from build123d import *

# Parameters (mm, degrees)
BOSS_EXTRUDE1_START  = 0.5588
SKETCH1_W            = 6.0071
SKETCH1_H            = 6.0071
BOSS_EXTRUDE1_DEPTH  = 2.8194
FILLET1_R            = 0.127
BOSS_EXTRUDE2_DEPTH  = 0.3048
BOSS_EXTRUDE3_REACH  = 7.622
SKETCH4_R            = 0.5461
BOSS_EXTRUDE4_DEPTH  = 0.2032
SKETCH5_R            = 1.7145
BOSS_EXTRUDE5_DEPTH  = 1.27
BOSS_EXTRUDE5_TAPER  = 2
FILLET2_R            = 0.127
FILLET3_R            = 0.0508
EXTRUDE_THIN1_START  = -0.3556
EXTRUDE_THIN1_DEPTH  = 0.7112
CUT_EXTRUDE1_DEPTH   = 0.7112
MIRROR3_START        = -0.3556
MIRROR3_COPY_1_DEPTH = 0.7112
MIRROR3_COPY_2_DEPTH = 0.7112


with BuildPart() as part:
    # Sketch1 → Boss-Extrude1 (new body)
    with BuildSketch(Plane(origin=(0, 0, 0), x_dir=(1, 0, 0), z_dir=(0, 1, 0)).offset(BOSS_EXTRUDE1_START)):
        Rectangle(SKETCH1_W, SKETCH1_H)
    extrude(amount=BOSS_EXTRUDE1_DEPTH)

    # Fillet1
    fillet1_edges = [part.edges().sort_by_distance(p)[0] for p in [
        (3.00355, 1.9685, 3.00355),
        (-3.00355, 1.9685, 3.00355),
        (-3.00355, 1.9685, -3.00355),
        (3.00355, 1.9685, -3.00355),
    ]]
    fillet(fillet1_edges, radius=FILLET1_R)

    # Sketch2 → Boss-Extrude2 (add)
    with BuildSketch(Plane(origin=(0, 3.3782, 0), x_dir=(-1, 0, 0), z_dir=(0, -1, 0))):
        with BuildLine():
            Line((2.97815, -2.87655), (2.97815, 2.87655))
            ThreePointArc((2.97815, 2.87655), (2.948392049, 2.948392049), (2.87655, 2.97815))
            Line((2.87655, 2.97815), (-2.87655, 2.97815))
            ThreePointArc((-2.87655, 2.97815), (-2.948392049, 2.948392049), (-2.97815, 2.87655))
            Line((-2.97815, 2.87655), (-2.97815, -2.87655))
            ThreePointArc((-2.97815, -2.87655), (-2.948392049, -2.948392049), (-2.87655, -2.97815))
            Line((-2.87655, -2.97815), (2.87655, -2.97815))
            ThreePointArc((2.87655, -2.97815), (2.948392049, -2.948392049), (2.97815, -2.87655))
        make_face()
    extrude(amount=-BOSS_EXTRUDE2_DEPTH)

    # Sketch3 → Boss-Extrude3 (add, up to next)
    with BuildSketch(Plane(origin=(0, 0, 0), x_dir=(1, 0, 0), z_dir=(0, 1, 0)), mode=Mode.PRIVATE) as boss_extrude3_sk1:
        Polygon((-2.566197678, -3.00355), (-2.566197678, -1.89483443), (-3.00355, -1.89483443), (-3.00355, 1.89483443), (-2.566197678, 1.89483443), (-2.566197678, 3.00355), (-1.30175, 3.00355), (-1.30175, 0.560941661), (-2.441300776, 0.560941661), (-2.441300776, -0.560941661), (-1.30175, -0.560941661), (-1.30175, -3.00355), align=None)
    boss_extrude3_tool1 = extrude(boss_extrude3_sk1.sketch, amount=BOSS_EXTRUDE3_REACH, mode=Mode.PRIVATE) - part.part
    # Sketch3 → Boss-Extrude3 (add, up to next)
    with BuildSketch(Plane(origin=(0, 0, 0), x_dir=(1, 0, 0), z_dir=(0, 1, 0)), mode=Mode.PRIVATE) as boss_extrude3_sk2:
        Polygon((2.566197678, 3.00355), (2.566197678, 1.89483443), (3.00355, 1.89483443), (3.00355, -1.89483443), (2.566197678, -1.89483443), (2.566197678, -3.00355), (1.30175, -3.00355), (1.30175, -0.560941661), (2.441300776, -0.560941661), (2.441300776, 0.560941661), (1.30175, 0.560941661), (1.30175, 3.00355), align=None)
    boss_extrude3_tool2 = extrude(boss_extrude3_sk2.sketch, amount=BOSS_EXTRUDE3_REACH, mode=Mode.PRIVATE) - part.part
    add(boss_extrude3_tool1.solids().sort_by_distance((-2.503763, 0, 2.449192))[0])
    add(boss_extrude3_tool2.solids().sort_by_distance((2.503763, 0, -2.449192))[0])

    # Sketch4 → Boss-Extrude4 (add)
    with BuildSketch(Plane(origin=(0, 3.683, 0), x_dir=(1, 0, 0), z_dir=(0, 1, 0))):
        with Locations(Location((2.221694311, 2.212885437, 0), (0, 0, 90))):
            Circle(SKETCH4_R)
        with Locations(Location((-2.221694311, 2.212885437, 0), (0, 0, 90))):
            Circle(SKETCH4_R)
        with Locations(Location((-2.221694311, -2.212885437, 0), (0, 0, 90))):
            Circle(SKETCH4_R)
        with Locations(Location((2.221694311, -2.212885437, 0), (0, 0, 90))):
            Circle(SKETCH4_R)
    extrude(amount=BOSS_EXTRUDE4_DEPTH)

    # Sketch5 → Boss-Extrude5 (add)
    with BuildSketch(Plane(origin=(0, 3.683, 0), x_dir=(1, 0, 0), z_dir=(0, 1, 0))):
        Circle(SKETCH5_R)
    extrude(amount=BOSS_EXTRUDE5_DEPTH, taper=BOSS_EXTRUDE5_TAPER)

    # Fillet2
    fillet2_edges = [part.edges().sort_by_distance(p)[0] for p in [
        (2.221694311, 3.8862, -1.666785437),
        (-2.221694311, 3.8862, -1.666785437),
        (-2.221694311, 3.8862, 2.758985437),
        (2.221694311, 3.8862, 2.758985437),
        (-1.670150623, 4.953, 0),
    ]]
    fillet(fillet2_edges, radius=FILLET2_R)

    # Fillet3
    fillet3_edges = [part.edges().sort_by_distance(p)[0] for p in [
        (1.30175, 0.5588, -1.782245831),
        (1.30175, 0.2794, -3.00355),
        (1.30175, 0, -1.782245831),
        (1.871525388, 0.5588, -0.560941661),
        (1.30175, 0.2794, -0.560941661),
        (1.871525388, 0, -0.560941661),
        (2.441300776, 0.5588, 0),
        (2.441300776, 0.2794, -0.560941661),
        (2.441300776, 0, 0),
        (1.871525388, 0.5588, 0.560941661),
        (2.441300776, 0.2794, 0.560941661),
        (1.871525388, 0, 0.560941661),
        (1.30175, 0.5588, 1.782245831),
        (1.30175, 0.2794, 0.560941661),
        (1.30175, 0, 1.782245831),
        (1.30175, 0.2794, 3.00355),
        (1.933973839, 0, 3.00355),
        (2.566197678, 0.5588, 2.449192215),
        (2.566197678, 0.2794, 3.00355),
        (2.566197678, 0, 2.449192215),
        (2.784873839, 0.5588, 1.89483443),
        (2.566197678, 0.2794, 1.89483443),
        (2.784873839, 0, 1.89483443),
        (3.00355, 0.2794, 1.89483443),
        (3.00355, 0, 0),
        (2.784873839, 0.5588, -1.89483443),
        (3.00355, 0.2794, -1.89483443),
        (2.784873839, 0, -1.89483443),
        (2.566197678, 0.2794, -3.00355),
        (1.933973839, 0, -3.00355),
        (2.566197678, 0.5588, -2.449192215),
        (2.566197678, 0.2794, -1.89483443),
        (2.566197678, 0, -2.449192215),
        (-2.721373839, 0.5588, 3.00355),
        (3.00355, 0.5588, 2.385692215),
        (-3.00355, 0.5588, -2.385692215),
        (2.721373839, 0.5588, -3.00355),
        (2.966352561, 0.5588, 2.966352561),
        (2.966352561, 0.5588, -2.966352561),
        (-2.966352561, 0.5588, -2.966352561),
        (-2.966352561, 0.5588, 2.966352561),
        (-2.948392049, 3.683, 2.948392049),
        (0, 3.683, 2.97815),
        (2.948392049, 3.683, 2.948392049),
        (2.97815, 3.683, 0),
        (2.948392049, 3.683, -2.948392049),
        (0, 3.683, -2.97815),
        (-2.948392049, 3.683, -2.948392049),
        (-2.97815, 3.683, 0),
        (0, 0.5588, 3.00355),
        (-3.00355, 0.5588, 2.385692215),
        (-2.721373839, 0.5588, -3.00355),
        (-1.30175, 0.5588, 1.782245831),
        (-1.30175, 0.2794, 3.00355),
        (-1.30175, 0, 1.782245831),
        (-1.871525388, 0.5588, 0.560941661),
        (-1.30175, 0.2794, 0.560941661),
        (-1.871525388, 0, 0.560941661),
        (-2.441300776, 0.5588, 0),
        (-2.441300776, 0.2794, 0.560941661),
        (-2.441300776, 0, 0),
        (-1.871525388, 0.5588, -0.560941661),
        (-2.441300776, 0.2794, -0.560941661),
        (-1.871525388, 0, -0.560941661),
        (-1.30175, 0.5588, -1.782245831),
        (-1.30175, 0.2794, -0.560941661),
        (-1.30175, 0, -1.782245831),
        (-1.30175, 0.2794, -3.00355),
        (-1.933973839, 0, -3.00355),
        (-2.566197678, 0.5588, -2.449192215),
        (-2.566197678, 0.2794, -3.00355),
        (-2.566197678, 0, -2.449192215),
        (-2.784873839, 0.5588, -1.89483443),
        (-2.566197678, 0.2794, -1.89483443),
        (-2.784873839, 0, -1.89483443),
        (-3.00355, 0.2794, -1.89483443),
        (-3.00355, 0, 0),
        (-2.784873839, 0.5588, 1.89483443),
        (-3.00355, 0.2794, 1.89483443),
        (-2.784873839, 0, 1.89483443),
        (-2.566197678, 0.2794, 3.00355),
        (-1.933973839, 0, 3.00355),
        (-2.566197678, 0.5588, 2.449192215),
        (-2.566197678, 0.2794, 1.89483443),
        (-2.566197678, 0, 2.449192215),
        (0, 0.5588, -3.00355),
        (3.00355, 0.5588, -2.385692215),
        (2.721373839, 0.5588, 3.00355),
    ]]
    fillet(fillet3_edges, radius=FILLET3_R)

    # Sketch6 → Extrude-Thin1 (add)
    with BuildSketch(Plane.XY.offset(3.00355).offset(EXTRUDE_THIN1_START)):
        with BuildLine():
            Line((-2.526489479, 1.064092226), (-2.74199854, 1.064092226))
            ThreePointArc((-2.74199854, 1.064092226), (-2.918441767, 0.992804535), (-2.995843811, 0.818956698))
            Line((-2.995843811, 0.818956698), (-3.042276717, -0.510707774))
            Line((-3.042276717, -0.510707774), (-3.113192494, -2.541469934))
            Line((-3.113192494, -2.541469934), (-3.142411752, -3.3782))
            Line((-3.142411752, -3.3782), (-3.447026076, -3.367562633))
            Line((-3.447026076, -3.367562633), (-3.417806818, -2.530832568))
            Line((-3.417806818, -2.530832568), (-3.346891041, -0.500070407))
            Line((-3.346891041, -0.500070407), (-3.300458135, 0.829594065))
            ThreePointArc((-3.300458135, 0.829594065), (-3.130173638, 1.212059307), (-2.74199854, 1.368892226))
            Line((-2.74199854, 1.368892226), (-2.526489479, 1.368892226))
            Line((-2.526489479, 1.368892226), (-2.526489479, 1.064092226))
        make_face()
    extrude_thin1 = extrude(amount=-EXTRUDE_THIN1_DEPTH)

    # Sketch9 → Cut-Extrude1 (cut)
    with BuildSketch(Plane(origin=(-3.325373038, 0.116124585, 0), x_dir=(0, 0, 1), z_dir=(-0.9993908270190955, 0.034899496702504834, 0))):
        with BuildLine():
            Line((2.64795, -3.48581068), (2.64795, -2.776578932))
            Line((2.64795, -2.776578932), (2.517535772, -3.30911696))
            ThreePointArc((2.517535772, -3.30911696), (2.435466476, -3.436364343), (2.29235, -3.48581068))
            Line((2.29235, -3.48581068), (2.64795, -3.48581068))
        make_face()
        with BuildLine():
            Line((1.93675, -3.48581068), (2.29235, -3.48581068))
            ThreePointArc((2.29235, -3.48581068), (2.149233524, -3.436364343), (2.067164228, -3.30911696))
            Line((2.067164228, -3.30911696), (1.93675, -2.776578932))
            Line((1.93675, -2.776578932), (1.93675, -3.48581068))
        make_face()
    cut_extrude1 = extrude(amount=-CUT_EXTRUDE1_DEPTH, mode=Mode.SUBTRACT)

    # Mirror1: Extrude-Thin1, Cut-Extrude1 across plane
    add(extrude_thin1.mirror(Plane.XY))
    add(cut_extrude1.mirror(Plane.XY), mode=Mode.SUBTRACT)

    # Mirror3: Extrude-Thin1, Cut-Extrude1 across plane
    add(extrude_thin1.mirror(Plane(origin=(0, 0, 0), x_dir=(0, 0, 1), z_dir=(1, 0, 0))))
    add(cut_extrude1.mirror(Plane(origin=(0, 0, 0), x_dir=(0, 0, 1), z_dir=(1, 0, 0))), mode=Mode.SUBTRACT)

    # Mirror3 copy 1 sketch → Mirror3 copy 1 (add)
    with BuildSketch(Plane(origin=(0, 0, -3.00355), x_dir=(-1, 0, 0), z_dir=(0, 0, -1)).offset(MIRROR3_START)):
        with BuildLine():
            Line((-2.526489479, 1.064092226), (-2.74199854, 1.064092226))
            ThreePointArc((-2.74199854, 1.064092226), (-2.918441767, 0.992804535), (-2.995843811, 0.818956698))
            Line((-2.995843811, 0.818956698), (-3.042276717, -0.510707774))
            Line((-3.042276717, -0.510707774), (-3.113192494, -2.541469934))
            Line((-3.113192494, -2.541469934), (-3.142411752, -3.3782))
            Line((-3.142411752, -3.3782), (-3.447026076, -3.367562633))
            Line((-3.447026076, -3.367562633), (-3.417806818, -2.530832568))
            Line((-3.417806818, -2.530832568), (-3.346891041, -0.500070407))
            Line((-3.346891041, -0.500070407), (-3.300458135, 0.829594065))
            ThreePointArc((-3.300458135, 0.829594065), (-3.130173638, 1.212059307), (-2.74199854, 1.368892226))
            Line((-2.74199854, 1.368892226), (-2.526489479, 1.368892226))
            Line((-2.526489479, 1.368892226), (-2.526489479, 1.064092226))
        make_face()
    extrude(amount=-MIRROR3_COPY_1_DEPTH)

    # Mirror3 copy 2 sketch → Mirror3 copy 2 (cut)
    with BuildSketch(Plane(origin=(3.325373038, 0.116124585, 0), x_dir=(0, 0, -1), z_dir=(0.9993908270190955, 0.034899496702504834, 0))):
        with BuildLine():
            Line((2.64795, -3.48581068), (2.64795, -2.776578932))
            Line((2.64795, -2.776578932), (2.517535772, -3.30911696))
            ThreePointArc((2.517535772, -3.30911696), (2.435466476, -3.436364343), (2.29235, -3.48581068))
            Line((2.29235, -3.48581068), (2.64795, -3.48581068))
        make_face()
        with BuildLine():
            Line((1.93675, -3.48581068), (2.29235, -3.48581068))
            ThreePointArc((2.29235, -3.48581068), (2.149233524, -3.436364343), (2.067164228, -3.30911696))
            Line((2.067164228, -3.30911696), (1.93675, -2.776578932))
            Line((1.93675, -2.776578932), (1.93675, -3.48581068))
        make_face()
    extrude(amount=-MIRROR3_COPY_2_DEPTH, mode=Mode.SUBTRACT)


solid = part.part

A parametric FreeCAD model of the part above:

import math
import FreeCAD as App
import Part
import Sketcher
Q = App.Units.Quantity


def edges_at(feature, points):
    """Names of the edges that pass closest to the given points."""
    edges = feature.Shape.Edges
    near = lambda p: min(range(len(edges)), key=lambda i: edges[i].distToShape(Part.Vertex(*p))[0])
    return sorted({f"Edge{near(p) + 1}" for p in points})

doc = App.newDocument("Part")
body = doc.addObject("PartDesign::Body", "Body")

sketch1 = body.newObject("Sketcher::SketchObject", "Sketch")
sketch1.AttachmentSupport = (doc.getObject("XZ_Plane"), [""])
sketch1.MapMode = "FlatFace"
sketch1.AttachmentOffset = App.Placement(App.Vector(0, 0, -0.022 * 25.4), App.Rotation())
sketch1.addGeometry([
    Part.LineSegment(App.Vector(-3, -3, 0), App.Vector(-3, 3, 0)),
    Part.LineSegment(App.Vector(-3, 3, 0), App.Vector(3, 3, 0)),
    Part.LineSegment(App.Vector(3, 3, 0), App.Vector(3, -3, 0)),
    Part.LineSegment(App.Vector(3, -3, 0), App.Vector(-3, -3, 0)),
], False)
sketch1.addConstraint([
    Sketcher.Constraint("Coincident", 0, 2, 1, 1),
    Sketcher.Constraint("Coincident", 1, 2, 2, 1),
    Sketcher.Constraint("Coincident", 2, 2, 3, 1),
    Sketcher.Constraint("Coincident", 3, 2, 0, 1),
    Sketcher.Constraint("Vertical", 0),
    Sketcher.Constraint("Horizontal", 1),
    Sketcher.Constraint("Vertical", 2),
    Sketcher.Constraint("Horizontal", 3),
    Sketcher.Constraint("Symmetric", 0, 2, 2, 2, -1, 1),
    Sketcher.Constraint("Equal", 3, 0),
    Sketcher.Constraint("DistanceX", 1, 1, 1, 2, Q("0.2365 in")),
])
pad1 = body.newObject("PartDesign::Pad", "Pad")
pad1.Profile = sketch1
pad1.Length = Q("0.111 in")
pad1.Reversed = True
doc.recompute()

fillet = body.newObject("PartDesign::Fillet", "Fillet")
fillet.Base = (pad1, edges_at(pad1, [
    (3.004, 1.968, 3.004),
    (-3.004, 1.968, 3.004),
    (-3.004, 1.968, -3.004),
    (3.004, 1.968, -3.004),
]))
fillet.Radius = Q("0.005 in")

sketch2 = body.newObject("Sketcher::SketchObject", "Sketch001")
sketch2.AttachmentSupport = (doc.getObject("XZ_Plane"), [""])
sketch2.MapMode = "FlatFace"
sketch2.AttachmentOffset = App.Placement(App.Vector(0, 0, -0.133 * 25.4), App.Rotation())
sketch2.addGeometry([
    Part.LineSegment(App.Vector(-2.98, 2.88, 0), App.Vector(-2.98, -2.88, 0)),
    Part.ArcOfCircle(Part.Circle(App.Vector(-2.88, -2.88, 0), App.Vector(0, 0, 1), 0.1), math.radians(180), math.radians(270)),
    Part.LineSegment(App.Vector(-2.88, -2.98, 0), App.Vector(2.88, -2.98, 0)),
    Part.ArcOfCircle(Part.Circle(App.Vector(2.88, -2.88, 0), App.Vector(0, 0, 1), 0.1), math.radians(-90), math.radians(0)),
    Part.LineSegment(App.Vector(2.98, -2.88, 0), App.Vector(2.98, 2.88, 0)),
    Part.ArcOfCircle(Part.Circle(App.Vector(2.88, 2.88, 0), App.Vector(0, 0, 1), 0.1), math.radians(0), math.radians(90)),
    Part.LineSegment(App.Vector(2.88, 2.98, 0), App.Vector(-2.88, 2.98, 0)),
    Part.ArcOfCircle(Part.Circle(App.Vector(-2.88, 2.88, 0), App.Vector(0, 0, 1), 0.1), math.radians(90), math.radians(180)),
], False)
sketch2.addConstraint([
    Sketcher.Constraint("Tangent", 0, 2, 1, 1),
    Sketcher.Constraint("Tangent", 1, 2, 2, 1),
    Sketcher.Constraint("Tangent", 2, 2, 3, 1),
    Sketcher.Constraint("Tangent", 3, 2, 4, 1),
    Sketcher.Constraint("Tangent", 4, 2, 5, 1),
    Sketcher.Constraint("Tangent", 5, 2, 6, 1),
    Sketcher.Constraint("Tangent", 6, 2, 7, 1),
    Sketcher.Constraint("Tangent", 7, 2, 0, 1),
    Sketcher.Constraint("Vertical", 0),
    Sketcher.Constraint("Horizontal", 2),
    Sketcher.Constraint("Vertical", 4),
    Sketcher.Constraint("Horizontal", 6),
    Sketcher.Constraint("Equal", 1, 3),
    Sketcher.Constraint("Equal", 3, 5),
    Sketcher.Constraint("Equal", 5, 7),
    Sketcher.Constraint("Symmetric", 1, 3, 5, 3, -1, 1),
    Sketcher.Constraint("Equal", 6, 0),
    Sketcher.Constraint("Radius", 1, Q("0.004 in")),
    Sketcher.Constraint("DistanceX", 2, 1, 2, 2, Q("0.2265 in")),
])
pad2 = body.newObject("PartDesign::Pad", "Pad001")
pad2.Profile = sketch2
pad2.Length = Q("0.012 in")
pad2.Reversed = True

sketch3 = body.newObject("Sketcher::SketchObject", "Sketch002")
sketch3.AttachmentSupport = (doc.getObject("XZ_Plane"), [""])
sketch3.MapMode = "FlatFace"
sketch3.addGeometry([
    Part.LineSegment(App.Vector(-2.57, 1.89, 0), App.Vector(-2.57, 3, 0)),
    Part.LineSegment(App.Vector(-2.57, 3, 0), App.Vector(-1.3, 3, 0)),
    Part.LineSegment(App.Vector(-1.3, 3, 0), App.Vector(-1.3, 0.56, 0)),
    Part.LineSegment(App.Vector(-1.3, 0.56, 0), App.Vector(-2.44, 0.56, 0)),
    Part.LineSegment(App.Vector(-2.44, 0.56, 0), App.Vector(-2.44, -0.56, 0)),
    Part.LineSegment(App.Vector(-2.44, -0.56, 0), App.Vector(-1.3, -0.56, 0)),
    Part.LineSegment(App.Vector(-1.3, -0.56, 0), App.Vector(-1.3, -3, 0)),
    Part.LineSegment(App.Vector(-1.3, -3, 0), App.Vector(-2.57, -3, 0)),
    Part.LineSegment(App.Vector(-2.57, -3, 0), App.Vector(-2.57, -1.89, 0)),
    Part.LineSegment(App.Vector(-2.57, -1.89, 0), App.Vector(-3, -1.89, 0)),
    Part.LineSegment(App.Vector(-3, -1.89, 0), App.Vector(-3, 1.89, 0)),
    Part.LineSegment(App.Vector(-3, 1.89, 0), App.Vector(-2.57, 1.89, 0)),
], False)
sketch3.addConstraint([
    Sketcher.Constraint("Coincident", 0, 2, 1, 1),
    Sketcher.Constraint("Coincident", 1, 2, 2, 1),
    Sketcher.Constraint("Coincident", 2, 2, 3, 1),
    Sketcher.Constraint("Coincident", 3, 2, 4, 1),
    Sketcher.Constraint("Coincident", 4, 2, 5, 1),
    Sketcher.Constraint("Coincident", 5, 2, 6, 1),
    Sketcher.Constraint("Coincident", 6, 2, 7, 1),
    Sketcher.Constraint("Coincident", 7, 2, 8, 1),
    Sketcher.Constraint("Coincident", 8, 2, 9, 1),
    Sketcher.Constraint("Coincident", 9, 2, 10, 1),
    Sketcher.Constraint("Coincident", 10, 2, 11, 1),
    Sketcher.Constraint("Coincident", 11, 2, 0, 1),
    Sketcher.Constraint("Vertical", 0),
    Sketcher.Constraint("Horizontal", 1),
    Sketcher.Constraint("Vertical", 2),
    Sketcher.Constraint("Horizontal", 3),
    Sketcher.Constraint("Vertical", 4),
    Sketcher.Constraint("Horizontal", 5),
    Sketcher.Constraint("Vertical", 6),
    Sketcher.Constraint("Horizontal", 7),
    Sketcher.Constraint("Vertical", 8),
    Sketcher.Constraint("Horizontal", 9),
    Sketcher.Constraint("Vertical", 10),
    Sketcher.Constraint("Horizontal", 11),
    Sketcher.Constraint("Symmetric", 2, 2, 5, 2, -1),
    Sketcher.Constraint("Symmetric", 0, 2, 7, 2, -1),
    Sketcher.Constraint("Equal", 0, 8),
    Sketcher.Constraint("DistanceX", 9, 2, 6, 2, Q("0.067 in")),
    Sketcher.Constraint("DistanceY", 6, 2, 1, 2, Q("0.2365 in")),
    Sketcher.Constraint("DistanceX", 3, 2, 3, 1, Q("1.139551 mm")),
    Sketcher.Constraint("DistanceY", 2, 2, 2, 1, Q("2.442608 mm")),
    Sketcher.Constraint("DistanceY", 10, 1, 10, 2, Q("3.789669 mm")),
    Sketcher.Constraint("DistanceX", 3, 2, -1, 1, Q("2.441301 mm")),
    Sketcher.Constraint("DistanceX", 1, 1, 1, 2, Q("1.264448 mm")),
])
pad3 = body.newObject("PartDesign::Pad", "Pad002")
pad3.Profile = sketch3
pad3.Type = "UpToFirst"
pad3.Reversed = True

sketch4 = body.newObject("Sketcher::SketchObject", "Sketch003")
sketch4.AttachmentSupport = (doc.getObject("XZ_Plane"), [""])
sketch4.MapMode = "FlatFace"
sketch4.addGeometry([
    Part.LineSegment(App.Vector(2.57, -1.89, 0), App.Vector(2.57, -3, 0)),
    Part.LineSegment(App.Vector(2.57, -3, 0), App.Vector(1.3, -3, 0)),
    Part.LineSegment(App.Vector(1.3, -3, 0), App.Vector(1.3, -0.56, 0)),
    Part.LineSegment(App.Vector(1.3, -0.56, 0), App.Vector(2.44, -0.56, 0)),
    Part.LineSegment(App.Vector(2.44, -0.56, 0), App.Vector(2.44, 0.56, 0)),
    Part.LineSegment(App.Vector(2.44, 0.56, 0), App.Vector(1.3, 0.56, 0)),
    Part.LineSegment(App.Vector(1.3, 0.56, 0), App.Vector(1.3, 3, 0)),
    Part.LineSegment(App.Vector(1.3, 3, 0), App.Vector(2.57, 3, 0)),
    Part.LineSegment(App.Vector(2.57, 3, 0), App.Vector(2.57, 1.89, 0)),
    Part.LineSegment(App.Vector(2.57, 1.89, 0), App.Vector(3, 1.89, 0)),
    Part.LineSegment(App.Vector(3, 1.89, 0), App.Vector(3, -1.89, 0)),
    Part.LineSegment(App.Vector(3, -1.89, 0), App.Vector(2.57, -1.89, 0)),
], False)
sketch4.addConstraint([
    Sketcher.Constraint("Coincident", 0, 2, 1, 1),
    Sketcher.Constraint("Coincident", 1, 2, 2, 1),
    Sketcher.Constraint("Coincident", 2, 2, 3, 1),
    Sketcher.Constraint("Coincident", 3, 2, 4, 1),
    Sketcher.Constraint("Coincident", 4, 2, 5, 1),
    Sketcher.Constraint("Coincident", 5, 2, 6, 1),
    Sketcher.Constraint("Coincident", 6, 2, 7, 1),
    Sketcher.Constraint("Coincident", 7, 2, 8, 1),
    Sketcher.Constraint("Coincident", 8, 2, 9, 1),
    Sketcher.Constraint("Coincident", 9, 2, 10, 1),
    Sketcher.Constraint("Coincident", 10, 2, 11, 1),
    Sketcher.Constraint("Coincident", 11, 2, 0, 1),
    Sketcher.Constraint("Vertical", 0),
    Sketcher.Constraint("Horizontal", 1),
    Sketcher.Constraint("Vertical", 2),
    Sketcher.Constraint("Horizontal", 3),
    Sketcher.Constraint("Vertical", 4),
    Sketcher.Constraint("Horizontal", 5),
    Sketcher.Constraint("Vertical", 6),
    Sketcher.Constraint("Horizontal", 7),
    Sketcher.Constraint("Vertical", 8),
    Sketcher.Constraint("Horizontal", 9),
    Sketcher.Constraint("Vertical", 10),
    Sketcher.Constraint("Horizontal", 11),
    Sketcher.Constraint("Symmetric", 2, 2, 5, 2, -1),
    Sketcher.Constraint("Symmetric", 0, 2, 7, 2, -1),
    Sketcher.Constraint("Equal", 0, 8),
    Sketcher.Constraint("DistanceX", 6, 2, 9, 2, Q("0.067 in")),
    Sketcher.Constraint("DistanceY", 1, 2, 6, 2, Q("0.2365 in")),
    Sketcher.Constraint("DistanceX", 3, 1, 3, 2, Q("1.139551 mm")),
    Sketcher.Constraint("DistanceY", 2, 1, 2, 2, Q("2.442608 mm")),
    Sketcher.Constraint("DistanceY", 10, 2, 10, 1, Q("3.789669 mm")),
    Sketcher.Constraint("DistanceX", -1, 1, 3, 2, Q("2.441301 mm")),
    Sketcher.Constraint("DistanceX", 1, 2, 1, 1, Q("1.264448 mm")),
])
pad4 = body.newObject("PartDesign::Pad", "Pad003")
pad4.Profile = sketch4
pad4.Type = "UpToFirst"
pad4.Reversed = True

sketch5 = body.newObject("Sketcher::SketchObject", "Sketch004")
sketch5.AttachmentSupport = (doc.getObject("XZ_Plane"), [""])
sketch5.MapMode = "FlatFace"
sketch5.AttachmentOffset = App.Placement(App.Vector(0, 0, -0.145 * 25.4), App.Rotation())
sketch5.addGeometry([
    Part.Circle(App.Vector(2.2, -2.2, 0), App.Vector(0, 0, 1), 0.5),
    Part.Circle(App.Vector(-2.2, -2.2, 0), App.Vector(0, 0, 1), 0.5),
    Part.Circle(App.Vector(-2.2, 2.2, 0), App.Vector(0, 0, 1), 0.5),
    Part.Circle(App.Vector(2.2, 2.2, 0), App.Vector(0, 0, 1), 0.5),
], False)
sketch5.addConstraint([
    Sketcher.Constraint("Equal", 0, 1),
    Sketcher.Constraint("Equal", 1, 2),
    Sketcher.Constraint("Equal", 2, 3),
    Sketcher.Constraint("Symmetric", 0, 3, 2, 3, -1, 1),
    Sketcher.Constraint("Symmetric", 1, 3, 3, 3, -1, 1),
    Sketcher.Constraint("Symmetric", 0, 3, 1, 3, -2),
    Sketcher.Constraint("Diameter", 0, Q("0.043 in")),
    Sketcher.Constraint("DistanceX", 1, 3, 0, 3, Q("4.443389 mm")),
    Sketcher.Constraint("DistanceY", 1, 3, 2, 3, Q("4.425771 mm")),
])
pad5 = body.newObject("PartDesign::Pad", "Pad004")
pad5.Profile = sketch5
pad5.Length = Q("0.008 in")
pad5.Reversed = True

sketch6 = body.newObject("Sketcher::SketchObject", "Sketch005")
sketch6.AttachmentSupport = (doc.getObject("XZ_Plane"), [""])
sketch6.MapMode = "FlatFace"
sketch6.AttachmentOffset = App.Placement(App.Vector(0, 0, -0.145 * 25.4), App.Rotation())
sketch6.addGeometry(Part.Circle(App.Vector(0, 0, 0), App.Vector(0, 0, 1), 1.7), False)
sketch6.addConstraint([
    Sketcher.Constraint("Coincident", 0, 3, -1, 1),
    Sketcher.Constraint("Diameter", 0, Q("0.135 in")),
])
pad6 = body.newObject("PartDesign::Pad", "Pad005")
pad6.Profile = sketch6
pad6.Length = Q("0.05 in")
pad6.Reversed = True
pad6.TaperAngle = -2
doc.recompute()

fillet2 = body.newObject("PartDesign::Fillet", "Fillet001")
fillet2.Base = (pad6, edges_at(pad6, [
    (2.222, 3.886, -1.667),
    (-2.222, 3.886, -1.667),
    (-2.222, 3.886, 2.759),
    (2.222, 3.886, 2.759),
    (-1.67, 4.953, 0),
]))
fillet2.Radius = Q("0.005 in")
doc.recompute()

fillet3 = body.newObject("PartDesign::Fillet", "Fillet002")
fillet3.Base = (fillet2, edges_at(fillet2, [
    (1.302, 0.559, -1.782),
    (1.302, 0.279, -3.004),
    (1.302, 0, -1.782),
    (1.872, 0.559, -0.561),
    (1.302, 0.279, -0.561),
    (1.872, 0, -0.561),
    (2.441, 0.559, 0),
    (2.441, 0.279, -0.561),
    (2.441, 0, 0),
    (1.872, 0.559, 0.561),
    (2.441, 0.279, 0.561),
    (1.872, 0, 0.561),
    (1.302, 0.559, 1.782),
    (1.302, 0.279, 0.561),
    (1.302, 0, 1.782),
    (1.302, 0.279, 3.004),
    (1.934, 0, 3.004),
    (2.566, 0.559, 2.449),
    (2.566, 0.279, 3.004),
    (2.566, 0, 2.449),
    (2.785, 0.559, 1.895),
    (2.566, 0.279, 1.895),
    (2.785, 0, 1.895),
    (3.004, 0.279, 1.895),
    (3.004, 0, 0),
    (2.785, 0.559, -1.895),
    (3.004, 0.279, -1.895),
    (2.785, 0, -1.895),
    (2.566, 0.279, -3.004),
    (1.934, 0, -3.004),
    (2.566, 0.559, -2.449),
    (2.566, 0.279, -1.895),
    (2.566, 0, -2.449),
    (-2.721, 0.559, 3.004),
    (3.004, 0.559, 2.386),
    (-3.004, 0.559, -2.386),
    (2.721, 0.559, -3.004),
    (2.966, 0.559, 2.966),
    (2.966, 0.559, -2.966),
    (-2.966, 0.559, -2.966),
    (-2.966, 0.559, 2.966),
    (-2.948, 3.683, 2.948),
    (0, 3.683, 2.978),
    (2.948, 3.683, 2.948),
    (2.978, 3.683, 0),
    (2.948, 3.683, -2.948),
    (0, 3.683, -2.978),
    (-2.948, 3.683, -2.948),
    (-2.978, 3.683, 0),
    (0, 0.559, 3.004),
    (-3.004, 0.559, 2.386),
    (-2.721, 0.559, -3.004),
    (-1.302, 0.559, 1.782),
    (-1.302, 0.279, 3.004),
    (-1.302, 0, 1.782),
    (-1.872, 0.559, 0.561),
    (-1.302, 0.279, 0.561),
    (-1.872, 0, 0.561),
    (-2.441, 0.559, 0),
    (-2.441, 0.279, 0.561),
    (-2.441, 0, 0),
    (-1.872, 0.559, -0.561),
    (-2.441, 0.279, -0.561),
    (-1.872, 0, -0.561),
    (-1.302, 0.559, -1.782),
    (-1.302, 0.279, -0.561),
    (-1.302, 0, -1.782),
    (-1.302, 0.279, -3.004),
    (-1.934, 0, -3.004),
    (-2.566, 0.559, -2.449),
    (-2.566, 0.279, -3.004),
    (-2.566, 0, -2.449),
    (-2.785, 0.559, -1.895),
    (-2.566, 0.279, -1.895),
    (-2.785, 0, -1.895),
    (-3.004, 0.279, -1.895),
    (-3.004, 0, 0),
    (-2.785, 0.559, 1.895),
    (-3.004, 0.279, 1.895),
    (-2.785, 0, 1.895),
    (-2.566, 0.279, 3.004),
    (-1.934, 0, 3.004),
    (-2.566, 0.559, 2.449),
    (-2.566, 0.279, 1.895),
    (-2.566, 0, 2.449),
    (0, 0.559, -3.004),
    (3.004, 0.559, -2.386),
    (2.721, 0.559, 3.004),
]))
fillet3.Radius = Q("0.002 in")

sketch7 = body.newObject("Sketcher::SketchObject", "Sketch006")
sketch7.AttachmentSupport = (doc.getObject("XY_Plane"), [""])
sketch7.MapMode = "FlatFace"
sketch7.AttachmentOffset = App.Placement(App.Vector(0, 0, 2.64795), App.Rotation())
sketch7.addGeometry([
    Part.LineSegment(App.Vector(-2.74, 1.06, 0), App.Vector(-2.53, 1.06, 0)),
    Part.LineSegment(App.Vector(-2.53, 1.06, 0), App.Vector(-2.53, 1.37, 0)),
    Part.LineSegment(App.Vector(-2.53, 1.37, 0), App.Vector(-2.74, 1.37, 0)),
    Part.ArcOfCircle(Part.Circle(App.Vector(-2.74, 0.81, 0), App.Vector(0, 0, 1), 0.56), math.radians(90), math.radians(178)),
    Part.LineSegment(App.Vector(-3.3, 0.83, 0), App.Vector(-3.35, -0.5, 0)),
    Part.LineSegment(App.Vector(-3.35, -0.5, 0), App.Vector(-3.42, -2.53, 0)),
    Part.LineSegment(App.Vector(-3.42, -2.53, 0), App.Vector(-3.45, -3.37, 0)),
    Part.LineSegment(App.Vector(-3.45, -3.37, 0), App.Vector(-3.14, -3.38, 0)),
    Part.LineSegment(App.Vector(-3.14, -3.38, 0), App.Vector(-3.11, -2.54, 0)),
    Part.LineSegment(App.Vector(-3.11, -2.54, 0), App.Vector(-3.04, -0.51, 0)),
    Part.LineSegment(App.Vector(-3.04, -0.51, 0), App.Vector(-3, 0.82, 0)),
    Part.ArcOfCircle(Part.Circle(App.Vector(-2.74, 0.81, 0), App.Vector(0, 0, 1), 0.25), math.radians(90), math.radians(178)),
], False)
sketch7.addConstraint([
    Sketcher.Constraint("Coincident", 0, 2, 1, 1),
    Sketcher.Constraint("Coincident", 1, 2, 2, 1),
    Sketcher.Constraint("Tangent", 2, 2, 3, 1),
    Sketcher.Constraint("Tangent", 3, 2, 4, 1),
    Sketcher.Constraint("Coincident", 4, 2, 5, 1),
    Sketcher.Constraint("Coincident", 5, 2, 6, 1),
    Sketcher.Constraint("Coincident", 6, 2, 7, 1),
    Sketcher.Constraint("Coincident", 7, 2, 8, 1),
    Sketcher.Constraint("Coincident", 8, 2, 9, 1),
    Sketcher.Constraint("Coincident", 9, 2, 10, 1),
    Sketcher.Constraint("Tangent", 10, 2, 11, 2),
    Sketcher.Constraint("Tangent", 11, 1, 0, 1),
    Sketcher.Constraint("Horizontal", 0),
    Sketcher.Constraint("Vertical", 1),
    Sketcher.Constraint("Horizontal", 2),
    Sketcher.Constraint("Coincident", 11, 3, 3, 3),
    Sketcher.Constraint("Parallel", 4, 5),
    Sketcher.Constraint("Parallel", 5, 6),
    Sketcher.Constraint("Perpendicular", 6, 7),
    Sketcher.Constraint("Perpendicular", 7, 8),
    Sketcher.Constraint("Parallel", 8, 9),
    Sketcher.Constraint("Parallel", 9, 10),
    Sketcher.Constraint("Equal", 6, 8),
    Sketcher.Constraint("Equal", 5, 9),
    Sketcher.Constraint("Radius", 11, Q("0.01 in")),
    Sketcher.Constraint("Angle", 4, Q("-92 deg")),
    Sketcher.Constraint("Radius", 3, Q("0.022 in")),
    Sketcher.Constraint("Distance", 5, Q("0.08 in")),
    Sketcher.Constraint("DistanceY", 7, 2, -1, 1, Q("0.133 in")),
    Sketcher.Constraint("DistanceY", 9, 2, 11, 3, Q("0.052 in")),
    Sketcher.Constraint("DistanceX", 0, 1, 0, 2, Q("0.215509 mm")),
    Sketcher.Constraint("DistanceX", 3, 3, -1, 1, Q("2.741999 mm")),
    Sketcher.Constraint("Distance", 6, Q("0.83724 mm")),
])
pad7 = body.newObject("PartDesign::Pad", "Pad006")
pad7.Profile = sketch7
pad7.Length = Q("0.028 in")
pad7.Reversed = True

sketch8 = body.newObject("Sketcher::SketchObject", "Sketch007")
sketch8.Placement = App.Placement(App.Vector(-3.325373, 0.116125, 0), App.Rotation(App.Vector(0, 0, 1), App.Vector(0.034899497, 0.999390827, 0), App.Vector(-0.999390827, 0.034899497, 0), "ZXY"))
sketch8.addGeometry([
    Part.LineSegment(App.Vector(2.65, -3.49, 0), App.Vector(2.65, -2.78, 0)),
    Part.LineSegment(App.Vector(2.65, -2.78, 0), App.Vector(2.52, -3.31, 0)),
    Part.ArcOfCircle(Part.Circle(App.Vector(2.29, -3.25, 0), App.Vector(0, 0, 1), 0.23), math.radians(-90), math.radians(-14)),
    Part.LineSegment(App.Vector(2.29, -3.49, 0), App.Vector(2.65, -3.49, 0)),
    Part.LineSegment(App.Vector(1.94, -3.49, 0), App.Vector(2.29, -3.49, 0)),
    Part.ArcOfCircle(Part.Circle(App.Vector(2.29, -3.25, 0), App.Vector(0, 0, 1), 0.23), math.radians(-166), math.radians(-90)),
    Part.LineSegment(App.Vector(2.07, -3.31, 0), App.Vector(1.94, -2.78, 0)),
    Part.LineSegment(App.Vector(1.94, -2.78, 0), App.Vector(1.94, -3.49, 0)),
], False)
sketch8.addConstraint([
    Sketcher.Constraint("Coincident", 0, 2, 1, 1),
    Sketcher.Constraint("Tangent", 1, 2, 2, 2),
    Sketcher.Constraint("Tangent", 2, 1, 3, 1),
    Sketcher.Constraint("Coincident", 3, 2, 0, 1),
    Sketcher.Constraint("Tangent", 4, 2, 5, 2),
    Sketcher.Constraint("Tangent", 5, 1, 6, 1),
    Sketcher.Constraint("Coincident", 6, 2, 7, 1),
    Sketcher.Constraint("Coincident", 7, 2, 4, 1),
    Sketcher.Constraint("Vertical", 0),
    Sketcher.Constraint("Horizontal", 3),
    Sketcher.Constraint("Horizontal", 4),
    Sketcher.Constraint("Vertical", 7),
    Sketcher.Constraint("Coincident", 5, 3, 2, 3),
    Sketcher.Constraint("Equal", 2, 5),
    Sketcher.Constraint("Horizontal", 1, 2, 5, 1),
    Sketcher.Constraint("Horizontal", 0, 2, 6, 2),
    Sketcher.Constraint("DistanceX", 3, 1, 3, 2, Q("0.014 in")),
    Sketcher.Constraint("Radius", 2, Q("0.23184 mm")),
    Sketcher.Constraint("DistanceY", 0, 1, 0, 2, Q("0.709232 mm")),
    Sketcher.Constraint("DistanceX", -1, 1, 2, 3, Q("2.29235 mm")),
    Sketcher.Constraint("DistanceY", 2, 3, -1, 1, Q("3.253971 mm")),
])
pocket1 = body.newObject("PartDesign::Pocket", "Pocket")
pocket1.Profile = sketch8
pocket1.Length = Q("0.028 in")
doc.recompute()

mirrored = body.newObject("PartDesign::Mirrored", "Mirrored")
mirrored.Originals = [pad7, pocket1]
mirrored.MirrorPlane = (doc.getObject("XY_Plane"), [""])
body.Tip = mirrored
doc.recompute()

mirrored2 = body.newObject("PartDesign::Mirrored", "Mirrored001")
mirrored2.Originals = [pad7, pocket1]
mirrored2.MirrorPlane = (doc.getObject("YZ_Plane"), [""])
body.Tip = mirrored2

sketch9 = body.newObject("Sketcher::SketchObject", "Sketch008")
sketch9.AttachmentSupport = (doc.getObject("XY_Plane"), [""])
sketch9.MapMode = "FlatFace"
sketch9.AttachmentOffset = App.Placement(App.Vector(0, 0, -2.64795), App.Rotation())
sketch9.addGeometry([
    Part.LineSegment(App.Vector(2.74, 1.06, 0), App.Vector(2.53, 1.06, 0)),
    Part.LineSegment(App.Vector(2.53, 1.06, 0), App.Vector(2.53, 1.37, 0)),
    Part.LineSegment(App.Vector(2.53, 1.37, 0), App.Vector(2.74, 1.37, 0)),
    Part.ArcOfCircle(Part.Circle(App.Vector(2.74, 0.81, 0), App.Vector(0, 0, 1), 0.56), math.radians(2), math.radians(90)),
    Part.LineSegment(App.Vector(3.3, 0.83, 0), App.Vector(3.35, -0.5, 0)),
    Part.LineSegment(App.Vector(3.35, -0.5, 0), App.Vector(3.42, -2.53, 0)),
    Part.LineSegment(App.Vector(3.42, -2.53, 0), App.Vector(3.45, -3.37, 0)),
    Part.LineSegment(App.Vector(3.45, -3.37, 0), App.Vector(3.14, -3.38, 0)),
    Part.LineSegment(App.Vector(3.14, -3.38, 0), App.Vector(3.11, -2.54, 0)),
    Part.LineSegment(App.Vector(3.11, -2.54, 0), App.Vector(3.04, -0.51, 0)),
    Part.LineSegment(App.Vector(3.04, -0.51, 0), App.Vector(3, 0.82, 0)),
    Part.ArcOfCircle(Part.Circle(App.Vector(2.74, 0.81, 0), App.Vector(0, 0, 1), 0.25), math.radians(2), math.radians(90)),
], False)
sketch9.addConstraint([
    Sketcher.Constraint("Coincident", 0, 2, 1, 1),
    Sketcher.Constraint("Coincident", 1, 2, 2, 1),
    Sketcher.Constraint("Tangent", 2, 2, 3, 2),
    Sketcher.Constraint("Tangent", 3, 1, 4, 1),
    Sketcher.Constraint("Coincident", 4, 2, 5, 1),
    Sketcher.Constraint("Coincident", 5, 2, 6, 1),
    Sketcher.Constraint("Coincident", 6, 2, 7, 1),
    Sketcher.Constraint("Coincident", 7, 2, 8, 1),
    Sketcher.Constraint("Coincident", 8, 2, 9, 1),
    Sketcher.Constraint("Coincident", 9, 2, 10, 1),
    Sketcher.Constraint("Tangent", 10, 2, 11, 1),
    Sketcher.Constraint("Tangent", 11, 2, 0, 1),
    Sketcher.Constraint("Horizontal", 0),
    Sketcher.Constraint("Vertical", 1),
    Sketcher.Constraint("Horizontal", 2),
    Sketcher.Constraint("Coincident", 11, 3, 3, 3),
    Sketcher.Constraint("Parallel", 4, 5),
    Sketcher.Constraint("Parallel", 5, 6),
    Sketcher.Constraint("Perpendicular", 6, 7),
    Sketcher.Constraint("Perpendicular", 7, 8),
    Sketcher.Constraint("Parallel", 8, 9),
    Sketcher.Constraint("Parallel", 9, 10),
    Sketcher.Constraint("Equal", 6, 8),
    Sketcher.Constraint("Equal", 5, 9),
    Sketcher.Constraint("Radius", 11, Q("0.01 in")),
    Sketcher.Constraint("Angle", 4, Q("-88 deg")),
    Sketcher.Constraint("Radius", 3, Q("0.022 in")),
    Sketcher.Constraint("Distance", 5, Q("0.08 in")),
    Sketcher.Constraint("DistanceY", 7, 2, -1, 1, Q("0.133 in")),
    Sketcher.Constraint("DistanceY", 9, 2, 11, 3, Q("0.052 in")),
    Sketcher.Constraint("DistanceX", 0, 2, 0, 1, Q("0.215509 mm")),
    Sketcher.Constraint("DistanceX", -1, 1, 3, 3, Q("2.741999 mm")),
    Sketcher.Constraint("Distance", 6, Q("0.83724 mm")),
])
pad8 = body.newObject("PartDesign::Pad", "Pad007")
pad8.Profile = sketch9
pad8.Length = Q("0.028 in")

sketch10 = body.newObject("Sketcher::SketchObject", "Sketch009")
sketch10.Placement = App.Placement(App.Vector(3.325373, 0.116125, 0), App.Rotation(App.Vector(0, 0, -1), App.Vector(-0.034899497, 0.999390827, 0), App.Vector(0.999390827, 0.034899497, 0), "ZXY"))
sketch10.addGeometry([
    Part.LineSegment(App.Vector(2.65, -3.49, 0), App.Vector(2.65, -2.78, 0)),
    Part.LineSegment(App.Vector(2.65, -2.78, 0), App.Vector(2.52, -3.31, 0)),
    Part.ArcOfCircle(Part.Circle(App.Vector(2.29, -3.25, 0), App.Vector(0, 0, 1), 0.23), math.radians(-90), math.radians(-14)),
    Part.LineSegment(App.Vector(2.29, -3.49, 0), App.Vector(2.65, -3.49, 0)),
    Part.LineSegment(App.Vector(1.94, -3.49, 0), App.Vector(2.29, -3.49, 0)),
    Part.ArcOfCircle(Part.Circle(App.Vector(2.29, -3.25, 0), App.Vector(0, 0, 1), 0.23), math.radians(-166), math.radians(-90)),
    Part.LineSegment(App.Vector(2.07, -3.31, 0), App.Vector(1.94, -2.78, 0)),
    Part.LineSegment(App.Vector(1.94, -2.78, 0), App.Vector(1.94, -3.49, 0)),
], False)
sketch10.addConstraint([
    Sketcher.Constraint("Coincident", 0, 2, 1, 1),
    Sketcher.Constraint("Tangent", 1, 2, 2, 2),
    Sketcher.Constraint("Tangent", 2, 1, 3, 1),
    Sketcher.Constraint("Coincident", 3, 2, 0, 1),
    Sketcher.Constraint("Tangent", 4, 2, 5, 2),
    Sketcher.Constraint("Tangent", 5, 1, 6, 1),
    Sketcher.Constraint("Coincident", 6, 2, 7, 1),
    Sketcher.Constraint("Coincident", 7, 2, 4, 1),
    Sketcher.Constraint("Vertical", 0),
    Sketcher.Constraint("Horizontal", 3),
    Sketcher.Constraint("Horizontal", 4),
    Sketcher.Constraint("Vertical", 7),
    Sketcher.Constraint("Coincident", 5, 3, 2, 3),
    Sketcher.Constraint("Equal", 2, 5),
    Sketcher.Constraint("Horizontal", 1, 2, 5, 1),
    Sketcher.Constraint("Horizontal", 0, 2, 6, 2),
    Sketcher.Constraint("DistanceX", 3, 1, 3, 2, Q("0.014 in")),
    Sketcher.Constraint("Radius", 2, Q("0.23184 mm")),
    Sketcher.Constraint("DistanceY", 0, 1, 0, 2, Q("0.709232 mm")),
    Sketcher.Constraint("DistanceX", -1, 1, 2, 3, Q("2.29235 mm")),
    Sketcher.Constraint("DistanceY", 2, 3, -1, 1, Q("3.253971 mm")),
])
pocket2 = body.newObject("PartDesign::Pocket", "Pocket001")
pocket2.Profile = sketch10
pocket2.Length = Q("0.028 in")

doc.recompute()
